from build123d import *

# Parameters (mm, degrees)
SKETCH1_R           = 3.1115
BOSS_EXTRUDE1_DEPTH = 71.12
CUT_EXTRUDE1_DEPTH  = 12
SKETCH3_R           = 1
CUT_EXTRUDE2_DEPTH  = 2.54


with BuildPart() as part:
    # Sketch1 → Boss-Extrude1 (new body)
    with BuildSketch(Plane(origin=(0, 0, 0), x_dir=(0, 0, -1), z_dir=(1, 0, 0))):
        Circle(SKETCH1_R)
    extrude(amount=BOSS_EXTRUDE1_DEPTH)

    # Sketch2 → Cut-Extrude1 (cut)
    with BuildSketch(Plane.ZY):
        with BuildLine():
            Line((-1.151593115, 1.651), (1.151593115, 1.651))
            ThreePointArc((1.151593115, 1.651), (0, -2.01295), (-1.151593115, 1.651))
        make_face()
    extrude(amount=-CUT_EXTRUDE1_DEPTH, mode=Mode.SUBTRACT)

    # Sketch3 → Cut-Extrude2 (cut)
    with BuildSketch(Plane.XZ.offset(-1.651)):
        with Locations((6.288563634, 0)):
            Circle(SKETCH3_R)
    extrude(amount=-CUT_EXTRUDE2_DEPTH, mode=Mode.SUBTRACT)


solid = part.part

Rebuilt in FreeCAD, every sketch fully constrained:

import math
import FreeCAD as App
import Part
import Sketcher

V = App.Vector
Q = App.Units.Quantity

doc = App.newDocument("Part")
body = doc.addObject("PartDesign::Body", "Body")

sketch1 = doc.addObject("Sketcher::SketchObject", "Sketch")
body.addObject(sketch1)
sketch1.AttachmentSupport = (doc.YZ_Plane, [""])
sketch1.MapMode = "FlatFace"
sketch1.addGeometry(Part.Circle(V(0, 0, 0), V(0, 0, 1), 3.1), False)
sketch1.addConstraint([
    Sketcher.Constraint("Coincident", 0, 3, -1, 1),
    Sketcher.Constraint("Diameter", 0, Q("0.245 in")),
])
pad1 = doc.addObject("PartDesign::Pad", "Pad")
body.addObject(pad1)
pad1.Profile = sketch1
pad1.Length = Q("2.8 in")

sketch2 = doc.addObject("Sketcher::SketchObject", "Sketch001")
body.addObject(sketch2)
sketch2.AttachmentSupport = (doc.YZ_Plane, [""])
sketch2.MapMode = "FlatFace"
sketch2.addGeometry([
    Part.LineSegment(V(1.7, 1.2, 0), V(1.7, -1.2, 0)),
    Part.ArcOfCircle(Part.Circle(V(0, 0, 0), V(0, 0, 1), 2), math.radians(35), math.radians(325)),
], False)
sketch2.addConstraint([
    Sketcher.Constraint("Coincident", 0, 1, 1, 1),
    Sketcher.Constraint("Coincident", 1, 2, 0, 2),
    Sketcher.Constraint("Vertical", 0),
    Sketcher.Constraint("Coincident", 1, 3, -1, 1),
    Sketcher.Constraint("DistanceX", -1, 1, 0, 1, Q("0.065 in")),
    Sketcher.Constraint("Radius", 1, 2.01295),
])
pocket1 = doc.addObject("PartDesign::Pocket", "Pocket")
body.addObject(pocket1)
pocket1.Profile = sketch2
pocket1.Length = 12
pocket1.Reversed = True

sketch3 = doc.addObject("Sketcher::SketchObject", "Sketch002")
body.addObject(sketch3)
sketch3.AttachmentSupport = (doc.XZ_Plane, [""])
sketch3.MapMode = "FlatFace"
sketch3.AttachmentOffset = App.Placement(V(0, 0, -0.065 * 25.4), App.Rotation())
sketch3.addGeometry(Part.Circle(V(6.3, 0, 0), V(0, 0, 1), 1), False)
sketch3.addConstraint([
    Sketcher.Constraint("PointOnObject", 0, 3, -1),
    Sketcher.Constraint("Diameter", 0, 2.0),
    Sketcher.Constraint("DistanceX", -1, 1, 0, 3, 6.288564),
])
pocket2 = doc.addObject("PartDesign::Pocket", "Pocket001")
body.addObject(pocket2)
pocket2.Profile = sketch3
pocket2.Length = Q("0.1 in")

doc.recompute()
